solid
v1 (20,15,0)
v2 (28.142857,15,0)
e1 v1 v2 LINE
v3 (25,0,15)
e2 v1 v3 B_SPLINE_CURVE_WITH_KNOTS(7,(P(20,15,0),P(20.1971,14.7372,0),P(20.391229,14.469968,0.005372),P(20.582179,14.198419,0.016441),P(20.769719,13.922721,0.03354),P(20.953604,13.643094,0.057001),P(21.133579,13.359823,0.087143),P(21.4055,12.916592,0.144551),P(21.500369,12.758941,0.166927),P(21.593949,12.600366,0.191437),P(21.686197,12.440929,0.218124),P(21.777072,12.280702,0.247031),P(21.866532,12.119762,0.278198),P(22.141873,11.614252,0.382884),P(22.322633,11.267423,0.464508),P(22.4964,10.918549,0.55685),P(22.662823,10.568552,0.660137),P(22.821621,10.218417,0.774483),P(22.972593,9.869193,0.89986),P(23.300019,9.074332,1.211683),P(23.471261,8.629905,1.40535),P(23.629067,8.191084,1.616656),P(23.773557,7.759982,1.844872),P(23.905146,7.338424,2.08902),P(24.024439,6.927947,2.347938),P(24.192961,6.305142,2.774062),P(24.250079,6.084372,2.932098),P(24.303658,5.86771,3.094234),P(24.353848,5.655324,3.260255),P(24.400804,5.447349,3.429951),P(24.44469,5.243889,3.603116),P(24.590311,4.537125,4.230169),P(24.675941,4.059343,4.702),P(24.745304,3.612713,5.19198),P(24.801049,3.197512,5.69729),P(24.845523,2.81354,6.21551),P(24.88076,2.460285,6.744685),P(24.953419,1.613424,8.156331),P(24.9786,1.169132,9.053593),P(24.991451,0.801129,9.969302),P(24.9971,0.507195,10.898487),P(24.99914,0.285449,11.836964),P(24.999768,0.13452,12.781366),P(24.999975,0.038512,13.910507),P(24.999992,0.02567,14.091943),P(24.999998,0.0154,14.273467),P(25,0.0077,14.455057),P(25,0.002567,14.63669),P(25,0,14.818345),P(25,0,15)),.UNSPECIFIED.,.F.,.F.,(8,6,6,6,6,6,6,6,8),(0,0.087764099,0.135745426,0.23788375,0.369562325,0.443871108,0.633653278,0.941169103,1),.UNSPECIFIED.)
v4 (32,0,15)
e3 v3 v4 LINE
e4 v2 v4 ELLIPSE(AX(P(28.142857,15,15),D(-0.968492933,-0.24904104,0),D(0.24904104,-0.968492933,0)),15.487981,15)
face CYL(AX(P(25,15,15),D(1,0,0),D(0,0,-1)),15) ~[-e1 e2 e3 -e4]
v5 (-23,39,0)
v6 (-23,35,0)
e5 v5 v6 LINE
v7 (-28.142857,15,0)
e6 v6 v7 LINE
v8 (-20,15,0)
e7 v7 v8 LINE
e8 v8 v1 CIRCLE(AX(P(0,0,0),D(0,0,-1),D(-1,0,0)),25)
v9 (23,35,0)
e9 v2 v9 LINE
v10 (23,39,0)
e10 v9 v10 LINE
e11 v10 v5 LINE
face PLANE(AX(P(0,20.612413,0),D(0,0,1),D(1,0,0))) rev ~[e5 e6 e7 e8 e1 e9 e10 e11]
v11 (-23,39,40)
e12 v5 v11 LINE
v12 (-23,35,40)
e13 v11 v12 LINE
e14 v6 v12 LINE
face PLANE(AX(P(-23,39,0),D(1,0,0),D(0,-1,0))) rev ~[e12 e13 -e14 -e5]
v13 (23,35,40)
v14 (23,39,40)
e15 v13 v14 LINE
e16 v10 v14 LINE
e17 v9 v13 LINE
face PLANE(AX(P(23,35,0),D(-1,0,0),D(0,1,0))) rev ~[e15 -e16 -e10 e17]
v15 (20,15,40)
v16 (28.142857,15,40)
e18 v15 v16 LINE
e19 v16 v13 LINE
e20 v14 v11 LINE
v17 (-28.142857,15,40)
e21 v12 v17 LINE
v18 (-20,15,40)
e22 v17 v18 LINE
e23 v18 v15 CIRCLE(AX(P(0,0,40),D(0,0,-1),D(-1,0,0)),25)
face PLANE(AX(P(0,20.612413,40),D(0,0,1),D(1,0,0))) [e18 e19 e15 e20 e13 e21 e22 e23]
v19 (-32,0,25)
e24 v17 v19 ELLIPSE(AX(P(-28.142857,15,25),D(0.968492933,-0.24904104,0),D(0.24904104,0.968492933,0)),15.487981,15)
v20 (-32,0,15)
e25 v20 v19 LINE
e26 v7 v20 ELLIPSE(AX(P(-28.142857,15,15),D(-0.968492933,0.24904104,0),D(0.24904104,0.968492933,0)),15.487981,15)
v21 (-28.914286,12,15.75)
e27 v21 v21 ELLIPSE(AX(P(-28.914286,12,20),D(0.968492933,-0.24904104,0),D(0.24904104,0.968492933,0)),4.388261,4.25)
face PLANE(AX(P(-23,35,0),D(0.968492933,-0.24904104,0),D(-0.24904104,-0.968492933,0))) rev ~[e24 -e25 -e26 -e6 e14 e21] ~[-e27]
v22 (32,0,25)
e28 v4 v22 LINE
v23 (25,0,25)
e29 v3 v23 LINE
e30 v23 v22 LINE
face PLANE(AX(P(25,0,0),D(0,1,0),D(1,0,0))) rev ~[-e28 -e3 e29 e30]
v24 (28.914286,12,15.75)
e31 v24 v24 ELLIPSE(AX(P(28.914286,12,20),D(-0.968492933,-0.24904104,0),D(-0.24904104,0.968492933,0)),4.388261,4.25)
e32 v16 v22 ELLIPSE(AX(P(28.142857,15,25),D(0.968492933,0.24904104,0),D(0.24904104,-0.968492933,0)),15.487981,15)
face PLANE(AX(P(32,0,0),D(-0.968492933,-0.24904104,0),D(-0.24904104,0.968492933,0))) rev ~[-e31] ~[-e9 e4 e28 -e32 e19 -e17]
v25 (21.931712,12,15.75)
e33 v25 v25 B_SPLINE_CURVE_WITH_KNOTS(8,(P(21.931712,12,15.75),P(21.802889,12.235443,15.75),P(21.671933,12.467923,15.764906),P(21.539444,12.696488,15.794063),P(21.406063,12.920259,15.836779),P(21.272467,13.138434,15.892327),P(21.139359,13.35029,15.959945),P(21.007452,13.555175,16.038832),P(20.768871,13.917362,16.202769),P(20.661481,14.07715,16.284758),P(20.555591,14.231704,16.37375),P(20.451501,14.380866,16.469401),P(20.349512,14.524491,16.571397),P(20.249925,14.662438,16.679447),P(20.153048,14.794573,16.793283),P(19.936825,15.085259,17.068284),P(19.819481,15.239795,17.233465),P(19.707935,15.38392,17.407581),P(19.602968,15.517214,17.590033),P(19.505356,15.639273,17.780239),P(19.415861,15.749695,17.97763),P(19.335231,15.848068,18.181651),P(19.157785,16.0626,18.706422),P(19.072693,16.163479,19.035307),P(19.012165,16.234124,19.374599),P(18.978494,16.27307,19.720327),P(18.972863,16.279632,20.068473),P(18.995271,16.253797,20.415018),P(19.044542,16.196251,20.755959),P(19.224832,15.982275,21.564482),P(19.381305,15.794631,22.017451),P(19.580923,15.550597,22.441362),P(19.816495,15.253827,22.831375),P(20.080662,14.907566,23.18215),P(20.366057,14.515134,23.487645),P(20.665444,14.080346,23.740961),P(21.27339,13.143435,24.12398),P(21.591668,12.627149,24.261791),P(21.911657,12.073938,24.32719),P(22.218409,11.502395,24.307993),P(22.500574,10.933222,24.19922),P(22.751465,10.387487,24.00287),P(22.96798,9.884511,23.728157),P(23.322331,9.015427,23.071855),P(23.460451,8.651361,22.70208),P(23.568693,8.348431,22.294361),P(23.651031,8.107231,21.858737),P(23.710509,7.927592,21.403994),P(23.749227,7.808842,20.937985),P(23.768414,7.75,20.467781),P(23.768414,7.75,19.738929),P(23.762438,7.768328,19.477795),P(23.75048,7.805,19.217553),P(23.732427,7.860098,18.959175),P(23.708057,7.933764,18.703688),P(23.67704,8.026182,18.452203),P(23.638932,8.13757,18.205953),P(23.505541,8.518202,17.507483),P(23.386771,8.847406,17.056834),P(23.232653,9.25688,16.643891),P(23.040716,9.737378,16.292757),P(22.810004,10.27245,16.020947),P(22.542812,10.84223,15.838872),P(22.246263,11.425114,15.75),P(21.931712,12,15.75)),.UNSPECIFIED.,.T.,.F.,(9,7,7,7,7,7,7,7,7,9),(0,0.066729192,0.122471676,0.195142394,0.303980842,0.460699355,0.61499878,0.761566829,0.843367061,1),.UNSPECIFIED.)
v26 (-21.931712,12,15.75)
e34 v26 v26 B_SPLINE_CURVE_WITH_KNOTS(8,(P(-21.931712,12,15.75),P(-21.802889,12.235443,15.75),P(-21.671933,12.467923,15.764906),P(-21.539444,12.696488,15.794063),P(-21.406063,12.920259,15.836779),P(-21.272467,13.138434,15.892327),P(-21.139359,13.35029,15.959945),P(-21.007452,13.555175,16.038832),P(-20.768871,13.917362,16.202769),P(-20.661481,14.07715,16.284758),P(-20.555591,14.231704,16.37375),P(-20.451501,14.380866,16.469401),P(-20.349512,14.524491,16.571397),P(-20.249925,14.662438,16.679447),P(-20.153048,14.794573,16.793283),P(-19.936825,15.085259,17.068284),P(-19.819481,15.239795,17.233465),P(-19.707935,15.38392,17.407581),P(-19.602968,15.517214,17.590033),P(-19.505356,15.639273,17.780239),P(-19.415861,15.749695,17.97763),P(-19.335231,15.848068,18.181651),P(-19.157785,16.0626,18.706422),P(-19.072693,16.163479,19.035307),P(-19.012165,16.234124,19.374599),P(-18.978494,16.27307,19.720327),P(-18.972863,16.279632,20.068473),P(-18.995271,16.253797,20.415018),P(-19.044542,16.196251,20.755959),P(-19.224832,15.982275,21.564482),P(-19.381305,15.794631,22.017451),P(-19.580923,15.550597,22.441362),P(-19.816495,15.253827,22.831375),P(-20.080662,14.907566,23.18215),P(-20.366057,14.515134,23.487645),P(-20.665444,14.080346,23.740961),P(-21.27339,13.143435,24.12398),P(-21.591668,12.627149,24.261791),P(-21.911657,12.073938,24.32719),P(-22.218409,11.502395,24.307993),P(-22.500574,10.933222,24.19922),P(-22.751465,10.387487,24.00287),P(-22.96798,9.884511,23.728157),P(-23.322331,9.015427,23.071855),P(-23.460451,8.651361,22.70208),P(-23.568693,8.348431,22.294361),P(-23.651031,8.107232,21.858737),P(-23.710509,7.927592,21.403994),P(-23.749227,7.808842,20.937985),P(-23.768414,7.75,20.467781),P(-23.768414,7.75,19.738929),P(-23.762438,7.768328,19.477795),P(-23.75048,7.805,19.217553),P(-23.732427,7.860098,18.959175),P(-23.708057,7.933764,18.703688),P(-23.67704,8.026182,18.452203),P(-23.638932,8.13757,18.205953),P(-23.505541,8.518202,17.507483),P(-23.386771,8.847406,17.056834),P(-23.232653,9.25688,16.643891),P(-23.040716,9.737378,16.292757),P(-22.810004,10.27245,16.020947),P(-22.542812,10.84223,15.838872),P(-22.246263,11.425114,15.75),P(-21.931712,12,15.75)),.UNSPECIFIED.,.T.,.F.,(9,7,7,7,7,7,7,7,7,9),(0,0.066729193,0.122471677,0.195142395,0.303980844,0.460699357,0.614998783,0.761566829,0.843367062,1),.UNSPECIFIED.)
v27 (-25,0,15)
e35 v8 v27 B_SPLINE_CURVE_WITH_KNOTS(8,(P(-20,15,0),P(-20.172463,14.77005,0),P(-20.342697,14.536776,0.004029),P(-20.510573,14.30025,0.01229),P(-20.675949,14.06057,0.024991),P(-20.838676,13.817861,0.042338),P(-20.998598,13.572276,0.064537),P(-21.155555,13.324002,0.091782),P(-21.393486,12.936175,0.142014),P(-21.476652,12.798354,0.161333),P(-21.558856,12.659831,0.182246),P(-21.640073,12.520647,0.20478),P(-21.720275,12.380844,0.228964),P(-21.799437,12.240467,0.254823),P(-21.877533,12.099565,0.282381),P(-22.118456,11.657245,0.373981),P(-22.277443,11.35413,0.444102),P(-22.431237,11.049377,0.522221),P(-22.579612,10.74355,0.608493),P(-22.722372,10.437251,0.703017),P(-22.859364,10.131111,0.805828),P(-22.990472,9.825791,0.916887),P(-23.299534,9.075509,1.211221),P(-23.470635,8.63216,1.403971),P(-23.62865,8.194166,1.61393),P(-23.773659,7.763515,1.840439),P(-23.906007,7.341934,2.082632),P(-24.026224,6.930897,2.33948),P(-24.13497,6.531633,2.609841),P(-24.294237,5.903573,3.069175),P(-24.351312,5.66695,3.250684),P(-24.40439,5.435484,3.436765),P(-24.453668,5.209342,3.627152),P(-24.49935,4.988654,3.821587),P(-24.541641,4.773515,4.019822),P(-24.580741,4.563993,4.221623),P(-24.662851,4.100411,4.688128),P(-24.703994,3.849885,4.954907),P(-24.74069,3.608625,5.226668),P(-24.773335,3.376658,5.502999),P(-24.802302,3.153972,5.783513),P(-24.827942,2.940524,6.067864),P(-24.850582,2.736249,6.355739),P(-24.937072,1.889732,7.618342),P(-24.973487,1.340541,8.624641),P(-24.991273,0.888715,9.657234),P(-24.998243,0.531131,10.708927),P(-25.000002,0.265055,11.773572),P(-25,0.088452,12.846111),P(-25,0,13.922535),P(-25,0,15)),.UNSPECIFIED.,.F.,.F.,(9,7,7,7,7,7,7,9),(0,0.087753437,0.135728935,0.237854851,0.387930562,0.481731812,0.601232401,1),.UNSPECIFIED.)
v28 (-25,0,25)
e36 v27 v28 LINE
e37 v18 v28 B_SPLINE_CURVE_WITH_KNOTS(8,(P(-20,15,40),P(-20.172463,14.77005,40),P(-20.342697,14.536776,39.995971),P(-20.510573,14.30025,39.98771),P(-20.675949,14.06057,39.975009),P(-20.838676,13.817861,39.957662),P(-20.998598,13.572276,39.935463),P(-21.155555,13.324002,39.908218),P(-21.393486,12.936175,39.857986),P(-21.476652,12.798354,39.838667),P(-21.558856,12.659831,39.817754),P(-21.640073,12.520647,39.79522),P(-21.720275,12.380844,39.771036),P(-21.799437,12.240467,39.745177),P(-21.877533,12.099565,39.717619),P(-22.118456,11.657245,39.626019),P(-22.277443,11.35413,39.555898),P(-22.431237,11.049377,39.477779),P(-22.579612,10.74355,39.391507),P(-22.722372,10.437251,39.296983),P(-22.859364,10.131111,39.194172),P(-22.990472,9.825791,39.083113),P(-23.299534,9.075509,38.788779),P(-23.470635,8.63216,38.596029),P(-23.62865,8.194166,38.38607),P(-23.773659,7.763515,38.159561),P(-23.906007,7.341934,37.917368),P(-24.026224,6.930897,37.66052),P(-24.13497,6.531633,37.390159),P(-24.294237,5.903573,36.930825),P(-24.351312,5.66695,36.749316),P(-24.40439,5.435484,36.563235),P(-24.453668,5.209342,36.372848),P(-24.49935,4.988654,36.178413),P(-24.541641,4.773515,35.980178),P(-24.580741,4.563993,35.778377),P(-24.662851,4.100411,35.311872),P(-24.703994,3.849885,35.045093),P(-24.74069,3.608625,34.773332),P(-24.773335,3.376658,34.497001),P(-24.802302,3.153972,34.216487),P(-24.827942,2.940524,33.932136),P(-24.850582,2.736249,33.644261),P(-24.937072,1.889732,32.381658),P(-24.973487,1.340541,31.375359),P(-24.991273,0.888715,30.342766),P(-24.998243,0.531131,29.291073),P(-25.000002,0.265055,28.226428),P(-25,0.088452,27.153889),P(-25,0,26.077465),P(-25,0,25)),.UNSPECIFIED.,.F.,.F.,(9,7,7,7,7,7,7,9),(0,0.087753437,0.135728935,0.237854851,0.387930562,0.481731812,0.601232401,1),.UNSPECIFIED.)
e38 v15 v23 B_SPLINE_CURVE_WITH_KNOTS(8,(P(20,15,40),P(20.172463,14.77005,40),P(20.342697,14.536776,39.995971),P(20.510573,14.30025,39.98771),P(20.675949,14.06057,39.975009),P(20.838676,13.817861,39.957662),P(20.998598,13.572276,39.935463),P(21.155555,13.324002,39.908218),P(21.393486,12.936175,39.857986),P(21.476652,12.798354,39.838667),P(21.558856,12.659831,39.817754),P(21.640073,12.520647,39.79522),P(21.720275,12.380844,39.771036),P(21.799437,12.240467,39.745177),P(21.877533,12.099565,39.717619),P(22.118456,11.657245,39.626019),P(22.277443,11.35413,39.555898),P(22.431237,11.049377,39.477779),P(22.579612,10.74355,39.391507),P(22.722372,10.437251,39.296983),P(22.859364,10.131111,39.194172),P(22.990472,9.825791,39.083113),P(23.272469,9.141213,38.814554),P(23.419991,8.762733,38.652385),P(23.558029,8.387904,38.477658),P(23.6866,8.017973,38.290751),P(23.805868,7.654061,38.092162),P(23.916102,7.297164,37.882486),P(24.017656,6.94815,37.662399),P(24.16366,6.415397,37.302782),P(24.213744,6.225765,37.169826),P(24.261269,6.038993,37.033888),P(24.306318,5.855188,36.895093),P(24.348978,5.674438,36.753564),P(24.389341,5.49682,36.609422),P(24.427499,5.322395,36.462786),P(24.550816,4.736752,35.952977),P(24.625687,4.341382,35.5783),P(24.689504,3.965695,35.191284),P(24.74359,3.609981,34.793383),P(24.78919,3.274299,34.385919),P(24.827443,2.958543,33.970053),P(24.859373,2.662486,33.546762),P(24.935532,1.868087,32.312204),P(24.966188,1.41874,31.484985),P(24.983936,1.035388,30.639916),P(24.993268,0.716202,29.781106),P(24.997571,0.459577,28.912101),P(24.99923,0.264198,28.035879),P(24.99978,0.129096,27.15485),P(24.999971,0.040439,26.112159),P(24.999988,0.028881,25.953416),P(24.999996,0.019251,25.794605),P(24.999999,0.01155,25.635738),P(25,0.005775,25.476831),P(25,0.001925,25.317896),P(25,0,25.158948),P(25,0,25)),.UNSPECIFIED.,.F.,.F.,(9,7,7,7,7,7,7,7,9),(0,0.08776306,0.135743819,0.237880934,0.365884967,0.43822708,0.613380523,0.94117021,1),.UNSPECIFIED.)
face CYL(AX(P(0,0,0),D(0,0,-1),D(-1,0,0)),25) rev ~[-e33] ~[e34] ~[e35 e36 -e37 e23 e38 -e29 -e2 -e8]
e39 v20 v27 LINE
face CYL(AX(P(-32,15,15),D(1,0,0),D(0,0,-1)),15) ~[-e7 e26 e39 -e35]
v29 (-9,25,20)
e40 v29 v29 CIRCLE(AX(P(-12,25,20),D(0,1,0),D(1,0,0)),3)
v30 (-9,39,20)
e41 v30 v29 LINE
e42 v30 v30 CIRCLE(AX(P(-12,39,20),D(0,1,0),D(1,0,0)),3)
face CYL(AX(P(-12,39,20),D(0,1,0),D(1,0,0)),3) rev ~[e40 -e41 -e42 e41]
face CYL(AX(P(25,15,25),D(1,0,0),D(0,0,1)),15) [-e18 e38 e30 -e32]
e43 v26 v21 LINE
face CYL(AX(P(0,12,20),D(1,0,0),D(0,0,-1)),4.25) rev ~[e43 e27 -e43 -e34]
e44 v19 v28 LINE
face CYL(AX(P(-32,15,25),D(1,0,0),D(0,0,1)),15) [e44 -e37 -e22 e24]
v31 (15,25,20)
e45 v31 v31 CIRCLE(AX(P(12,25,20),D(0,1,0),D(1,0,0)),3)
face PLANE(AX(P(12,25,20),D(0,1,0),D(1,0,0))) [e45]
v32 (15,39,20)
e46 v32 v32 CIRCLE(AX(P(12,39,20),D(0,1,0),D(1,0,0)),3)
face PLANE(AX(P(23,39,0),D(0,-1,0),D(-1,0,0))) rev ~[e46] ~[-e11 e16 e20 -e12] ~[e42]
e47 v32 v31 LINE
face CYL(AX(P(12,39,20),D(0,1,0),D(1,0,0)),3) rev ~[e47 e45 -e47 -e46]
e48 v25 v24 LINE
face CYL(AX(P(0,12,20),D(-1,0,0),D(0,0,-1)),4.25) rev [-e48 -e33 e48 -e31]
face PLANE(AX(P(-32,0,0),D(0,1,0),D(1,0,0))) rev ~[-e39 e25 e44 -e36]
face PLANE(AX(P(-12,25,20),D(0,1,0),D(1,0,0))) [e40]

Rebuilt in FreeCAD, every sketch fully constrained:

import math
import FreeCAD as App
import Part
import Sketcher

V = App.Vector


def edges_at(feature, points):
    """Names of the edges that pass closest to the given points."""
    edges = feature.Shape.Edges
    near = lambda p: min(range(len(edges)), key=lambda i: edges[i].distToShape(Part.Vertex(*p))[0])
    return sorted({f"Edge{near(p) + 1}" for p in points})

doc = App.newDocument("Part")
body = doc.addObject("PartDesign::Body", "Body")

# Sketch on XY plane
sketch1 = body.newObject("Sketcher::SketchObject", "Sketch")
sketch1.AttachmentSupport = (doc.getObject("XY_Plane"), [""])
sketch1.MapMode = "FlatFace"
sketch1.addGeometry(Part.LineSegment(V(-23, 35, 0), V(-32, 0, 0)), False)
sketch1.addGeometry(Part.LineSegment(V(-32, 0, 0), V(-25, 0, 0)), False)
sketch1.addGeometry(Part.ArcOfCircle(Part.Circle(V(0, 0, 0), V(0, 0, 1), 25), math.radians(0), math.radians(180)), False)
sketch1.addGeometry(Part.LineSegment(V(25, 0, 0), V(32, 0, 0)), False)
sketch1.addGeometry(Part.LineSegment(V(32, 0, 0), V(23, 35, 0)), False)
sketch1.addGeometry(Part.LineSegment(V(23, 35, 0), V(23, 39, 0)), False)
sketch1.addGeometry(Part.LineSegment(V(23, 39, 0), V(-23, 39, 0)), False)
sketch1.addGeometry(Part.LineSegment(V(-23, 39, 0), V(-23, 35, 0)), False)
sketch1.addConstraint(Sketcher.Constraint("Coincident", 0, 2, 1, 1))
sketch1.addConstraint(Sketcher.Constraint("Coincident", 1, 2, 2, 2))
sketch1.addConstraint(Sketcher.Constraint("Coincident", 2, 1, 3, 1))
sketch1.addConstraint(Sketcher.Constraint("Coincident", 3, 2, 4, 1))
sketch1.addConstraint(Sketcher.Constraint("Coincident", 4, 2, 5, 1))
sketch1.addConstraint(Sketcher.Constraint("Coincident", 5, 2, 6, 1))
sketch1.addConstraint(Sketcher.Constraint("Coincident", 6, 2, 7, 1))
sketch1.addConstraint(Sketcher.Constraint("Coincident", 7, 2, 0, 1))
sketch1.addConstraint(Sketcher.Constraint("Horizontal", 1))
sketch1.addConstraint(Sketcher.Constraint("Horizontal", 3))
sketch1.addConstraint(Sketcher.Constraint("Vertical", 5))
sketch1.addConstraint(Sketcher.Constraint("Horizontal", 6))
sketch1.addConstraint(Sketcher.Constraint("Vertical", 7))
sketch1.addConstraint(Sketcher.Constraint("Coincident", 2, 3, -1, 1))
sketch1.addConstraint(Sketcher.Constraint("Symmetric", 0, 2, 3, 2, -1, 1))
sketch1.addConstraint(Sketcher.Constraint("Symmetric", 4, 2, 7, 2, -2))
sketch1.addConstraint(Sketcher.Constraint("PointOnObject", 0, 2, -1))
sketch1.addConstraint(Sketcher.Constraint("Radius", 2, 25.0))
sketch1.addConstraint(Sketcher.Constraint("DistanceX", 1, 1, 1, 2, 7.0))
sketch1.addConstraint(Sketcher.Constraint("DistanceX", 6, 2, 6, 1, 46.0))
sketch1.addConstraint(Sketcher.Constraint("DistanceY", 5, 1, 5, 2, 4.0))
sketch1.addConstraint(Sketcher.Constraint("DistanceY", -1, 1, 4, 2, 35.0))
pad1 = body.newObject("PartDesign::Pad", "Pad")
pad1.Profile = sketch1
pad1.Length = 40

# Sketch on XZ plane
sketch2 = body.newObject("Sketcher::SketchObject", "Sketch001")
sketch2.AttachmentSupport = (doc.getObject("XZ_Plane"), [""])
sketch2.MapMode = "FlatFace"
sketch2.AttachmentOffset = App.Placement(V(0, 0, -39), App.Rotation())
sketch2.addGeometry(Part.Circle(V(-12, 20, 0), V(0, 0, 1), 3), False)
sketch2.addGeometry(Part.Circle(V(12, 20, 0), V(0, 0, 1), 3), False)
sketch2.addConstraint(Sketcher.Constraint("Equal", 0, 1))
sketch2.addConstraint(Sketcher.Constraint("Symmetric", 0, 3, 1, 3, -2))
sketch2.addConstraint(Sketcher.Constraint("Diameter", 0, 6.0))
sketch2.addConstraint(Sketcher.Constraint("DistanceX", 0, 3, -1, 1, 12.0))
sketch2.addConstraint(Sketcher.Constraint("DistanceY", -1, 1, 0, 3, 20.0))
pocket1 = body.newObject("PartDesign::Pocket", "Pocket")
pocket1.Profile = sketch2
pocket1.Length = 14
pocket1.Reversed = True

# Sketch on YZ plane
sketch3 = body.newObject("Sketcher::SketchObject", "Sketch002")
sketch3.AttachmentSupport = (doc.getObject("YZ_Plane"), [""])
sketch3.MapMode = "FlatFace"
sketch3.addGeometry(Part.Circle(V(12, 20, 0), V(0, 0, 1), 4.2), False)
sketch3.addConstraint(Sketcher.Constraint("Diameter", 0, 8.5))
sketch3.addConstraint(Sketcher.Constraint("DistanceX", -1, 1, 0, 3, 12.0))
sketch3.addConstraint(Sketcher.Constraint("DistanceY", -1, 1, 0, 3, 20.0))
pocket2 = body.newObject("PartDesign::Pocket", "Pocket001")
pocket2.Profile = sketch3
pocket2.Type = "ThroughAll"
pocket2.Midplane = True
doc.recompute()

fillet = body.newObject("PartDesign::Fillet", "Fillet")
fillet.Base = (pocket2, edges_at(pocket2, [
    (-28.5, 0, 0),
    (-28.5, 0, 40),
    (28.5, 0, 40),
    (28.5, 0, 0),
]))
fillet.Radius = 15

doc.recompute()
